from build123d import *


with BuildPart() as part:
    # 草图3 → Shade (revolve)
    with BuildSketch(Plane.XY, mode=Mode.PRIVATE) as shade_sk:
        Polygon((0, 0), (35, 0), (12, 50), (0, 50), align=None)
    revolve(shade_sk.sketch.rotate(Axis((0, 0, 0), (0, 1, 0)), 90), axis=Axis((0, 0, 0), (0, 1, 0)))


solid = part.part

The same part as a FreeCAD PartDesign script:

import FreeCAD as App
import Part
import Sketcher

doc = App.newDocument("Part")
body = doc.addObject("PartDesign::Body", "Body")

# Sketch on XY plane
sketch1 = doc.addObject("Sketcher::SketchObject", "Sketch")
body.addObject(sketch1)
sketch1.AttachmentSupport = (doc.XY_Plane, [""])
sketch1.MapMode = "FlatFace"
sketch1.addGeometry(Part.LineSegment(App.Vector(0, 0, 0), App.Vector(35, 0, 0)), False)
sketch1.addGeometry(Part.LineSegment(App.Vector(35, 0, 0), App.Vector(12, 50, 0)), False)
sketch1.addGeometry(Part.LineSegment(App.Vector(12, 50, 0), App.Vector(0, 50, 0)), False)
sketch1.addGeometry(Part.LineSegment(App.Vector(0, 50, 0), App.Vector(0, 0, 0)), False)
sketch1.addConstraint(Sketcher.Constraint("Coincident", 0, 2, 1, 1))
sketch1.addConstraint(Sketcher.Constraint("Coincident", 1, 2, 2, 1))
sketch1.addConstraint(Sketcher.Constraint("Coincident", 2, 2, 3, 1))
sketch1.addConstraint(Sketcher.Constraint("Coincident", 3, 2, 0, 1))
sketch1.addConstraint(Sketcher.Constraint("Horizontal", 0))
sketch1.addConstraint(Sketcher.Constraint("Horizontal", 2))
sketch1.addConstraint(Sketcher.Constraint("Vertical", 3))
sketch1.addConstraint(Sketcher.Constraint("Coincident", 3, 2, -1, 1))
sketch1.addConstraint(Sketcher.Constraint("DistanceX", 0, 1, 0, 2, 35.0))
sketch1.addConstraint(Sketcher.Constraint("DistanceX", 2, 2, 2, 1, 12.0))
sketch1.addConstraint(Sketcher.Constraint("DistanceY", 3, 2, 3, 1, 50.0))
revolution = doc.addObject("PartDesign::Revolution", "Revolution")
body.addObject(revolution)
revolution.Profile = sketch1
revolution.ReferenceAxis = (sketch1, ["V_Axis"])
revolution.Angle = 360

doc.recompute()
